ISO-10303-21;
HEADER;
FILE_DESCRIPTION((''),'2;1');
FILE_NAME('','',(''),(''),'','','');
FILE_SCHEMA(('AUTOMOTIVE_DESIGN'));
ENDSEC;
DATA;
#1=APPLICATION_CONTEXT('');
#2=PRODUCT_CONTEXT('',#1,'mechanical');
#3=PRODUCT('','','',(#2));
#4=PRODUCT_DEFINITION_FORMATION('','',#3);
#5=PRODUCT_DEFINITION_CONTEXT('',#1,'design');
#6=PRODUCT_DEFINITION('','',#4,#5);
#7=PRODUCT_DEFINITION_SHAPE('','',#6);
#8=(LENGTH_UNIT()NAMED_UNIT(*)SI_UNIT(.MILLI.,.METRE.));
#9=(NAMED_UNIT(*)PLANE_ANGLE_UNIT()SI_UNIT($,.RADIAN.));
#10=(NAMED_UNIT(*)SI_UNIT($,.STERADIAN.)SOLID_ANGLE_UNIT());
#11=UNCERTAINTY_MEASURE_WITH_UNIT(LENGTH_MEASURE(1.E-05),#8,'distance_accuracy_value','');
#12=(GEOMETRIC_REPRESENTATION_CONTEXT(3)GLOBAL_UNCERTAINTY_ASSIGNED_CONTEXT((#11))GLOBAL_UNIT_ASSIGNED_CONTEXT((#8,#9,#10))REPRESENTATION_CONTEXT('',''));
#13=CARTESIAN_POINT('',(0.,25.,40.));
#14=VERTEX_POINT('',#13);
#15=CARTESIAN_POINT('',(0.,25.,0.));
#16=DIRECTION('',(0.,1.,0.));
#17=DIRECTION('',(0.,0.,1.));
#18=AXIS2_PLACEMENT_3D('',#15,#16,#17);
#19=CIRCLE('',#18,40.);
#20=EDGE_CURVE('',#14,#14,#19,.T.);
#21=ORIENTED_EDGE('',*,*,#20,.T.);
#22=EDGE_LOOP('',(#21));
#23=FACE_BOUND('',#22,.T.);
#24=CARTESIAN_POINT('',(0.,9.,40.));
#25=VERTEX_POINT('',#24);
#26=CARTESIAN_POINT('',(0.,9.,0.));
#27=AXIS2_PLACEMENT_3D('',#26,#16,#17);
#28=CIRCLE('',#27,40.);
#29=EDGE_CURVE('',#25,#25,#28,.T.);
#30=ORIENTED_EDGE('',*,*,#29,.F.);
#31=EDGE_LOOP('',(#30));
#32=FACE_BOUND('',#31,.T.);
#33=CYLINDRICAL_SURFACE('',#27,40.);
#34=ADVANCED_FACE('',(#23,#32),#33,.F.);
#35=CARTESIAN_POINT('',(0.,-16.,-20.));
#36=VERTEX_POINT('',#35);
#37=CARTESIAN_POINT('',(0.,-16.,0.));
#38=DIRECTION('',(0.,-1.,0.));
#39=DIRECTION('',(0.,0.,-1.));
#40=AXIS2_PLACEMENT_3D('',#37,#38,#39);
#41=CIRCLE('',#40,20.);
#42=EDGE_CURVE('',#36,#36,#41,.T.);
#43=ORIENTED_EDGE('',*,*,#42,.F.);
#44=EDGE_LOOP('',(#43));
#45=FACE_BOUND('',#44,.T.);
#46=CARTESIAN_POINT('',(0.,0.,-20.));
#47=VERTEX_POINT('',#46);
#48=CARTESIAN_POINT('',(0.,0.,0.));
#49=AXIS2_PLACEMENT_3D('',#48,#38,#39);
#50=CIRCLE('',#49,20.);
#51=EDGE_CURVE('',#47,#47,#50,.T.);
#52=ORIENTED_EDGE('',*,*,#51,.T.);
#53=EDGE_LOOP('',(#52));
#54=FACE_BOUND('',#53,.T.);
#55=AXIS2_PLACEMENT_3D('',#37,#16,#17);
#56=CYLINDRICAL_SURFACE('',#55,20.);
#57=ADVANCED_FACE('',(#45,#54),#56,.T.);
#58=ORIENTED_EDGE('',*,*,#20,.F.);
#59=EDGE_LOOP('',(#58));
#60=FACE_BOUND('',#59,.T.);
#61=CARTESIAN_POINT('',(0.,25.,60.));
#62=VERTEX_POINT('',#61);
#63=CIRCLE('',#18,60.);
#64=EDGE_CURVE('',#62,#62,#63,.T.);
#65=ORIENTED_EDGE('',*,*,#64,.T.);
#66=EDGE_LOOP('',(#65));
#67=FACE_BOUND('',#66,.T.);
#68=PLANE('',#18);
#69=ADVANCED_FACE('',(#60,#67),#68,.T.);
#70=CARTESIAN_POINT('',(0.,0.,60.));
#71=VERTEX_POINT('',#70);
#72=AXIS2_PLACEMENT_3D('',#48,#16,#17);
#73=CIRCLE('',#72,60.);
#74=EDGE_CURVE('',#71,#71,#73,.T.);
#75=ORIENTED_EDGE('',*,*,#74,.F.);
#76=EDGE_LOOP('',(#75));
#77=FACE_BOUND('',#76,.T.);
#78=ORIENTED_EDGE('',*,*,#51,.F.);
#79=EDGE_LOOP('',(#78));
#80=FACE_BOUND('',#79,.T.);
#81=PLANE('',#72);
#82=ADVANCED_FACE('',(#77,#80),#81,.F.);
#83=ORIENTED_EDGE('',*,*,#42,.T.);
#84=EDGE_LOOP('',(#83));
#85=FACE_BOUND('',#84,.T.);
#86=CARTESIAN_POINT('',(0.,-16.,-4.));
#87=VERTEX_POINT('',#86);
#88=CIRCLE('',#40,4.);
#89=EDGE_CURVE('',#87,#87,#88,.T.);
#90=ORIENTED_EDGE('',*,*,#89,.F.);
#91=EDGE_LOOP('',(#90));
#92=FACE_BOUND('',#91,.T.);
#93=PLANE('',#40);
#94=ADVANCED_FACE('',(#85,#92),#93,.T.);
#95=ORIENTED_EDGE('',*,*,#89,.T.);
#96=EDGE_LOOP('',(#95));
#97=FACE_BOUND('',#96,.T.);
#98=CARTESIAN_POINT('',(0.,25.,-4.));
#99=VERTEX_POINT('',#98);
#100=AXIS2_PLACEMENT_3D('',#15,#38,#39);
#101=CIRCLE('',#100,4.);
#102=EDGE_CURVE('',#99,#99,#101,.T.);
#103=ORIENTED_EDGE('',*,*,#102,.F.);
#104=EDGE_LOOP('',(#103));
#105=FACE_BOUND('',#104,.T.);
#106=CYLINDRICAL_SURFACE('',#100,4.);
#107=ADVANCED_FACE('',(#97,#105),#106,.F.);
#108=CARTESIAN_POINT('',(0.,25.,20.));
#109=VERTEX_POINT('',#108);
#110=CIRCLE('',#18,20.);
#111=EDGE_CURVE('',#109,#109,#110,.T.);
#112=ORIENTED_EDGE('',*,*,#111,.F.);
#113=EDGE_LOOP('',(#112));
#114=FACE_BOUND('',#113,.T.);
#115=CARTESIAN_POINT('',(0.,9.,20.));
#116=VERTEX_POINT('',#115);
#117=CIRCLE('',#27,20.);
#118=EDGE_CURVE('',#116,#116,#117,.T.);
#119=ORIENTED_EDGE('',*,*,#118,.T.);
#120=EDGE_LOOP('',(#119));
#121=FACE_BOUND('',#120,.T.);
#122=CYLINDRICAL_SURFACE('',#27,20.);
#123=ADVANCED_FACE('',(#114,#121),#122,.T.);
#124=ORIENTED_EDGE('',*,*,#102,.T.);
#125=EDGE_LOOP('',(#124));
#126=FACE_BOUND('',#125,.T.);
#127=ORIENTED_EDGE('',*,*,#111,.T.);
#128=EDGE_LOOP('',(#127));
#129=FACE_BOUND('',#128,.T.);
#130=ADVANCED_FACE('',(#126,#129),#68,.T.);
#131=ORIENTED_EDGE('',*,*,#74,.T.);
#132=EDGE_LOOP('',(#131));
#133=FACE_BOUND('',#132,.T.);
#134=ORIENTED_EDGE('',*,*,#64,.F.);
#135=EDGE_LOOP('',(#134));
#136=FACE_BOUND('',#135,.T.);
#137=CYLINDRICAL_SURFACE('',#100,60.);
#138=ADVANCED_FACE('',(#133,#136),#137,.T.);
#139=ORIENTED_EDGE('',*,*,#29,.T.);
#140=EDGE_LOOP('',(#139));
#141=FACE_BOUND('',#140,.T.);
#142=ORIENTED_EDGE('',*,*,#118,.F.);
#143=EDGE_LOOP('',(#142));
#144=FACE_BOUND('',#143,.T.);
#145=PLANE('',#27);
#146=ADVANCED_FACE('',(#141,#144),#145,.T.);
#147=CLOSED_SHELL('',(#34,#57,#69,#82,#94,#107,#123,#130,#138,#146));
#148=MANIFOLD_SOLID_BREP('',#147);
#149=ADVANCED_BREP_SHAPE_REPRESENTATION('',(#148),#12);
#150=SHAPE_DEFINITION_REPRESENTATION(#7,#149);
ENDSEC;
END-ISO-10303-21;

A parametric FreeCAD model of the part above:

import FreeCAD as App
import Part
import Sketcher
from FreeCAD import Vector

doc = App.newDocument("Part")
body = doc.addObject("PartDesign::Body", "Body")

# Sketch on XZ plane
sketch1 = body.newObject("Sketcher::SketchObject", "Sketch")
sketch1.AttachmentSupport = (doc.getObject("XZ_Plane"), [""])
sketch1.MapMode = "FlatFace"
sketch1.addGeometry(Part.Circle(Vector(0, 0, 0), Vector(0, 0, 1), 60), False)
sketch1.addConstraint([
    Sketcher.Constraint("Coincident", 0, 3, -1, 1),
    Sketcher.Constraint("Diameter", 0, 120.0),
])
pad1 = body.newObject("PartDesign::Pad", "Pad")
pad1.Profile = sketch1
pad1.Length = 25
pad1.Reversed = True

# Sketch on XZ plane
sketch2 = body.newObject("Sketcher::SketchObject", "Sketch001")
sketch2.AttachmentSupport = (doc.getObject("XZ_Plane"), [""])
sketch2.MapMode = "FlatFace"
sketch2.AttachmentOffset = App.Placement(Vector(0, 0, -25), App.Rotation())
sketch2.addGeometry([
    Part.Circle(Vector(0, 0, 0), Vector(0, 0, 1), 40),
    Part.Circle(Vector(0, 0, 0), Vector(0, 0, 1), 20),
], False)
sketch2.addConstraint([
    Sketcher.Constraint("Coincident", 0, 3, -1, 1),
    Sketcher.Constraint("Coincident", 1, 3, -1, 1),
    Sketcher.Constraint("Diameter", 0, 80.0),
    Sketcher.Constraint("Diameter", 1, 40.0),
])
pocket1 = body.newObject("PartDesign::Pocket", "Pocket")
pocket1.Profile = sketch2
pocket1.Length = 16
pocket1.Reversed = True

# Sketch on XZ plane
sketch3 = body.newObject("Sketcher::SketchObject", "Sketch002")
sketch3.AttachmentSupport = (doc.getObject("XZ_Plane"), [""])
sketch3.MapMode = "FlatFace"
sketch3.addGeometry(Part.Circle(Vector(0, 0, 0), Vector(0, 0, 1), 20), False)
sketch3.addConstraint([
    Sketcher.Constraint("Coincident", 0, 3, -1, 1),
    Sketcher.Constraint("Diameter", 0, 40.0),
])
pad2 = body.newObject("PartDesign::Pad", "Pad001")
pad2.Profile = sketch3
pad2.Length = 16

# Sketch on XZ plane
sketch4 = body.newObject("Sketcher::SketchObject", "Sketch003")
sketch4.AttachmentSupport = (doc.getObject("XZ_Plane"), [""])
sketch4.MapMode = "FlatFace"
sketch4.AttachmentOffset = App.Placement(Vector(0, 0, 16), App.Rotation())
sketch4.addGeometry(Part.Circle(Vector(0, 0, 0), Vector(0, 0, 1), 4), False)
sketch4.addConstraint([
    Sketcher.Constraint("Coincident", 0, 3, -1, 1),
    Sketcher.Constraint("Diameter", 0, 8.0),
])
pocket2 = body.newObject("PartDesign::Pocket", "Pocket001")
pocket2.Profile = sketch4
pocket2.Length = 41

doc.recompute()
